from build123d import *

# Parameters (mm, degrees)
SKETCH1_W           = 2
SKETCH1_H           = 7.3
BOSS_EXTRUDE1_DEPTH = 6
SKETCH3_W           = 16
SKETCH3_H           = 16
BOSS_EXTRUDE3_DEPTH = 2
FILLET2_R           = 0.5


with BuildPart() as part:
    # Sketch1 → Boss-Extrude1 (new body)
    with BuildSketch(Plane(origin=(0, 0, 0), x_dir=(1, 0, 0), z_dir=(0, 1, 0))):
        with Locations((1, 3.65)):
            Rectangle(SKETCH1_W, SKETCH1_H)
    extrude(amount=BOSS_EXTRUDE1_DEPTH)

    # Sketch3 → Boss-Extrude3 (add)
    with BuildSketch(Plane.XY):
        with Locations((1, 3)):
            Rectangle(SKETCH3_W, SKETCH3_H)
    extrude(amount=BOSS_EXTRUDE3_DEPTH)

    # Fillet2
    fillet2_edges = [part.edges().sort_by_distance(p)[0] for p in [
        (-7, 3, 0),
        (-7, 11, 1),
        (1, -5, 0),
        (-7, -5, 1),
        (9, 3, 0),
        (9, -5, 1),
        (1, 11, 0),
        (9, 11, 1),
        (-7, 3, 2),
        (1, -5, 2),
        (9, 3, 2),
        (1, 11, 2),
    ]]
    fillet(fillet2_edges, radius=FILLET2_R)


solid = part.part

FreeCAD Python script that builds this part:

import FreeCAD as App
import Part
import Sketcher
Q = App.Units.Quantity


def edges_at(feature, points):
    """Names of the edges that pass closest to the given points."""
    edges = feature.Shape.Edges
    near = lambda p: min(range(len(edges)), key=lambda i: edges[i].distToShape(Part.Vertex(*p))[0])
    return sorted({f"Edge{near(p) + 1}" for p in points})

doc = App.newDocument("Part")
body = doc.addObject("PartDesign::Body", "Body")

# Sketch on XZ plane
sketch1 = doc.addObject("Sketcher::SketchObject", "Sketch")
body.addObject(sketch1)
sketch1.AttachmentSupport = (doc.XZ_Plane, [""])
sketch1.MapMode = "FlatFace"
sketch1.addGeometry(Part.LineSegment(App.Vector(0, -7.3, 0), App.Vector(0, 0, 0)), False)
sketch1.addGeometry(Part.LineSegment(App.Vector(0, 0, 0), App.Vector(2, 0, 0)), False)
sketch1.addGeometry(Part.LineSegment(App.Vector(2, 0, 0), App.Vector(2, -7.3, 0)), False)
sketch1.addGeometry(Part.LineSegment(App.Vector(2, -7.3, 0), App.Vector(0, -7.3, 0)), False)
sketch1.addConstraint(Sketcher.Constraint("Coincident", 0, 2, 1, 1))
sketch1.addConstraint(Sketcher.Constraint("Coincident", 1, 2, 2, 1))
sketch1.addConstraint(Sketcher.Constraint("Coincident", 2, 2, 3, 1))
sketch1.addConstraint(Sketcher.Constraint("Coincident", 3, 2, 0, 1))
sketch1.addConstraint(Sketcher.Constraint("Vertical", 0))
sketch1.addConstraint(Sketcher.Constraint("Horizontal", 1))
sketch1.addConstraint(Sketcher.Constraint("Vertical", 2))
sketch1.addConstraint(Sketcher.Constraint("Horizontal", 3))
sketch1.addConstraint(Sketcher.Constraint("Coincident", 0, 2, -1, 1))
sketch1.addConstraint(Sketcher.Constraint("DistanceX", 1, 1, 1, 2, Q("2 mm")))
sketch1.addConstraint(Sketcher.Constraint("DistanceY", 0, 1, 0, 2, Q("7.3 mm")))
pad1 = doc.addObject("PartDesign::Pad", "Pad")
body.addObject(pad1)
pad1.Profile = sketch1
pad1.Length = 6
pad1.Reversed = True

# Sketch on XY plane
sketch2 = doc.addObject("Sketcher::SketchObject", "Sketch001")
body.addObject(sketch2)
sketch2.AttachmentSupport = (doc.XY_Plane, [""])
sketch2.MapMode = "FlatFace"
sketch2.addGeometry(Part.LineSegment(App.Vector(-7, 11, 0), App.Vector(-7, -5, 0)), False)
sketch2.addGeometry(Part.LineSegment(App.Vector(-7, -5, 0), App.Vector(9, -5, 0)), False)
sketch2.addGeometry(Part.LineSegment(App.Vector(9, -5, 0), App.Vector(9, 11, 0)), False)
sketch2.addGeometry(Part.LineSegment(App.Vector(9, 11, 0), App.Vector(-7, 11, 0)), False)
sketch2.addConstraint(Sketcher.Constraint("Coincident", 0, 2, 1, 1))
sketch2.addConstraint(Sketcher.Constraint("Coincident", 1, 2, 2, 1))
sketch2.addConstraint(Sketcher.Constraint("Coincident", 2, 2, 3, 1))
sketch2.addConstraint(Sketcher.Constraint("Coincident", 3, 2, 0, 1))
sketch2.addConstraint(Sketcher.Constraint("Vertical", 0))
sketch2.addConstraint(Sketcher.Constraint("Horizontal", 1))
sketch2.addConstraint(Sketcher.Constraint("Vertical", 2))
sketch2.addConstraint(Sketcher.Constraint("Horizontal", 3))
sketch2.addConstraint(Sketcher.Constraint("Equal", 3, 0))
sketch2.addConstraint(Sketcher.Constraint("DistanceX", 1, 1, 1, 2, Q("16 mm")))
sketch2.addConstraint(Sketcher.Constraint("DistanceX", 0, 2, -1, 1, Q("7 mm")))
sketch2.addConstraint(Sketcher.Constraint("DistanceY", 0, 2, -1, 1, Q("5 mm")))
pad2 = doc.addObject("PartDesign::Pad", "Pad001")
body.addObject(pad2)
pad2.Profile = sketch2
pad2.Length = 2
doc.recompute()

fillet = doc.addObject("PartDesign::Fillet", "Fillet")
body.addObject(fillet)
fillet.Base = (pad2, edges_at(pad2, [
    (-7, 3, 0),
    (-7, 11, 1),
    (1, -5, 0),
    (-7, -5, 1),
    (9, 3, 0),
    (9, -5, 1),
    (1, 11, 0),
    (9, 11, 1),
    (-7, 3, 2),
    (1, -5, 2),
    (9, 3, 2),
    (1, 11, 2),
]))
fillet.Radius = 0.5

doc.recompute()
